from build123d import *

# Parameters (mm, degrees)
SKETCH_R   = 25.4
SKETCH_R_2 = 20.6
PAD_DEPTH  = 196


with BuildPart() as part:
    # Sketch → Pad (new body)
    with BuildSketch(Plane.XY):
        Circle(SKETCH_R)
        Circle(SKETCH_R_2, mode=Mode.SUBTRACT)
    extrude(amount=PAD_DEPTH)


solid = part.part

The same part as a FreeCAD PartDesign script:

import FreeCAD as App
import Part
import Sketcher

V = App.Vector

doc = App.newDocument("Part")
body = doc.addObject("PartDesign::Body", "Body")

sketch1 = body.newObject("Sketcher::SketchObject", "Sketch")
sketch1.AttachmentSupport = (doc.getObject("XY_Plane"), [""])
sketch1.MapMode = "FlatFace"
sketch1.addGeometry(Part.Circle(V(0, 0, 0), V(0, 0, 1), 25), False)
sketch1.addGeometry(Part.Circle(V(0, 0, 0), V(0, 0, 1), 21), False)
sketch1.addConstraint(Sketcher.Constraint("Coincident", 0, 3, -1, 1))
sketch1.addConstraint(Sketcher.Constraint("Coincident", 1, 3, -1, 1))
sketch1.addConstraint(Sketcher.Constraint("Diameter", 0, 50.8))
sketch1.addConstraint(Sketcher.Constraint("Diameter", 1, 41.2))
pad1 = body.newObject("PartDesign::Pad", "Pad")
pad1.Profile = sketch1
pad1.Length = 196

doc.recompute()
